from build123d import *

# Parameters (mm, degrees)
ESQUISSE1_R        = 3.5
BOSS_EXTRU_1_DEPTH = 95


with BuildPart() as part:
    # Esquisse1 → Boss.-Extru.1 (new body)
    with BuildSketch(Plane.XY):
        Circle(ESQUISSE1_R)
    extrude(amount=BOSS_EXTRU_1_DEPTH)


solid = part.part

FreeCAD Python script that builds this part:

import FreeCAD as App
import Part
import Sketcher
from FreeCAD import Vector
Q = App.Units.Quantity

doc = App.newDocument("Part")
body = doc.addObject("PartDesign::Body", "Body")

# Sketch on XY plane
sketch1 = doc.addObject("Sketcher::SketchObject", "Sketch")
body.addObject(sketch1)
sketch1.AttachmentSupport = (doc.XY_Plane, [""])
sketch1.MapMode = "FlatFace"
sketch1.addGeometry(Part.Circle(Vector(0, 0, 0), Vector(0, 0, 1), 3.5), False)
sketch1.addConstraint(Sketcher.Constraint("Coincident", 0, 3, -1, 1))
sketch1.addConstraint(Sketcher.Constraint("Diameter", 0, Q("7 mm")))
pad1 = doc.addObject("PartDesign::Pad", "Pad")
body.addObject(pad1)
pad1.Profile = sketch1
pad1.Length = 95

doc.recompute()
